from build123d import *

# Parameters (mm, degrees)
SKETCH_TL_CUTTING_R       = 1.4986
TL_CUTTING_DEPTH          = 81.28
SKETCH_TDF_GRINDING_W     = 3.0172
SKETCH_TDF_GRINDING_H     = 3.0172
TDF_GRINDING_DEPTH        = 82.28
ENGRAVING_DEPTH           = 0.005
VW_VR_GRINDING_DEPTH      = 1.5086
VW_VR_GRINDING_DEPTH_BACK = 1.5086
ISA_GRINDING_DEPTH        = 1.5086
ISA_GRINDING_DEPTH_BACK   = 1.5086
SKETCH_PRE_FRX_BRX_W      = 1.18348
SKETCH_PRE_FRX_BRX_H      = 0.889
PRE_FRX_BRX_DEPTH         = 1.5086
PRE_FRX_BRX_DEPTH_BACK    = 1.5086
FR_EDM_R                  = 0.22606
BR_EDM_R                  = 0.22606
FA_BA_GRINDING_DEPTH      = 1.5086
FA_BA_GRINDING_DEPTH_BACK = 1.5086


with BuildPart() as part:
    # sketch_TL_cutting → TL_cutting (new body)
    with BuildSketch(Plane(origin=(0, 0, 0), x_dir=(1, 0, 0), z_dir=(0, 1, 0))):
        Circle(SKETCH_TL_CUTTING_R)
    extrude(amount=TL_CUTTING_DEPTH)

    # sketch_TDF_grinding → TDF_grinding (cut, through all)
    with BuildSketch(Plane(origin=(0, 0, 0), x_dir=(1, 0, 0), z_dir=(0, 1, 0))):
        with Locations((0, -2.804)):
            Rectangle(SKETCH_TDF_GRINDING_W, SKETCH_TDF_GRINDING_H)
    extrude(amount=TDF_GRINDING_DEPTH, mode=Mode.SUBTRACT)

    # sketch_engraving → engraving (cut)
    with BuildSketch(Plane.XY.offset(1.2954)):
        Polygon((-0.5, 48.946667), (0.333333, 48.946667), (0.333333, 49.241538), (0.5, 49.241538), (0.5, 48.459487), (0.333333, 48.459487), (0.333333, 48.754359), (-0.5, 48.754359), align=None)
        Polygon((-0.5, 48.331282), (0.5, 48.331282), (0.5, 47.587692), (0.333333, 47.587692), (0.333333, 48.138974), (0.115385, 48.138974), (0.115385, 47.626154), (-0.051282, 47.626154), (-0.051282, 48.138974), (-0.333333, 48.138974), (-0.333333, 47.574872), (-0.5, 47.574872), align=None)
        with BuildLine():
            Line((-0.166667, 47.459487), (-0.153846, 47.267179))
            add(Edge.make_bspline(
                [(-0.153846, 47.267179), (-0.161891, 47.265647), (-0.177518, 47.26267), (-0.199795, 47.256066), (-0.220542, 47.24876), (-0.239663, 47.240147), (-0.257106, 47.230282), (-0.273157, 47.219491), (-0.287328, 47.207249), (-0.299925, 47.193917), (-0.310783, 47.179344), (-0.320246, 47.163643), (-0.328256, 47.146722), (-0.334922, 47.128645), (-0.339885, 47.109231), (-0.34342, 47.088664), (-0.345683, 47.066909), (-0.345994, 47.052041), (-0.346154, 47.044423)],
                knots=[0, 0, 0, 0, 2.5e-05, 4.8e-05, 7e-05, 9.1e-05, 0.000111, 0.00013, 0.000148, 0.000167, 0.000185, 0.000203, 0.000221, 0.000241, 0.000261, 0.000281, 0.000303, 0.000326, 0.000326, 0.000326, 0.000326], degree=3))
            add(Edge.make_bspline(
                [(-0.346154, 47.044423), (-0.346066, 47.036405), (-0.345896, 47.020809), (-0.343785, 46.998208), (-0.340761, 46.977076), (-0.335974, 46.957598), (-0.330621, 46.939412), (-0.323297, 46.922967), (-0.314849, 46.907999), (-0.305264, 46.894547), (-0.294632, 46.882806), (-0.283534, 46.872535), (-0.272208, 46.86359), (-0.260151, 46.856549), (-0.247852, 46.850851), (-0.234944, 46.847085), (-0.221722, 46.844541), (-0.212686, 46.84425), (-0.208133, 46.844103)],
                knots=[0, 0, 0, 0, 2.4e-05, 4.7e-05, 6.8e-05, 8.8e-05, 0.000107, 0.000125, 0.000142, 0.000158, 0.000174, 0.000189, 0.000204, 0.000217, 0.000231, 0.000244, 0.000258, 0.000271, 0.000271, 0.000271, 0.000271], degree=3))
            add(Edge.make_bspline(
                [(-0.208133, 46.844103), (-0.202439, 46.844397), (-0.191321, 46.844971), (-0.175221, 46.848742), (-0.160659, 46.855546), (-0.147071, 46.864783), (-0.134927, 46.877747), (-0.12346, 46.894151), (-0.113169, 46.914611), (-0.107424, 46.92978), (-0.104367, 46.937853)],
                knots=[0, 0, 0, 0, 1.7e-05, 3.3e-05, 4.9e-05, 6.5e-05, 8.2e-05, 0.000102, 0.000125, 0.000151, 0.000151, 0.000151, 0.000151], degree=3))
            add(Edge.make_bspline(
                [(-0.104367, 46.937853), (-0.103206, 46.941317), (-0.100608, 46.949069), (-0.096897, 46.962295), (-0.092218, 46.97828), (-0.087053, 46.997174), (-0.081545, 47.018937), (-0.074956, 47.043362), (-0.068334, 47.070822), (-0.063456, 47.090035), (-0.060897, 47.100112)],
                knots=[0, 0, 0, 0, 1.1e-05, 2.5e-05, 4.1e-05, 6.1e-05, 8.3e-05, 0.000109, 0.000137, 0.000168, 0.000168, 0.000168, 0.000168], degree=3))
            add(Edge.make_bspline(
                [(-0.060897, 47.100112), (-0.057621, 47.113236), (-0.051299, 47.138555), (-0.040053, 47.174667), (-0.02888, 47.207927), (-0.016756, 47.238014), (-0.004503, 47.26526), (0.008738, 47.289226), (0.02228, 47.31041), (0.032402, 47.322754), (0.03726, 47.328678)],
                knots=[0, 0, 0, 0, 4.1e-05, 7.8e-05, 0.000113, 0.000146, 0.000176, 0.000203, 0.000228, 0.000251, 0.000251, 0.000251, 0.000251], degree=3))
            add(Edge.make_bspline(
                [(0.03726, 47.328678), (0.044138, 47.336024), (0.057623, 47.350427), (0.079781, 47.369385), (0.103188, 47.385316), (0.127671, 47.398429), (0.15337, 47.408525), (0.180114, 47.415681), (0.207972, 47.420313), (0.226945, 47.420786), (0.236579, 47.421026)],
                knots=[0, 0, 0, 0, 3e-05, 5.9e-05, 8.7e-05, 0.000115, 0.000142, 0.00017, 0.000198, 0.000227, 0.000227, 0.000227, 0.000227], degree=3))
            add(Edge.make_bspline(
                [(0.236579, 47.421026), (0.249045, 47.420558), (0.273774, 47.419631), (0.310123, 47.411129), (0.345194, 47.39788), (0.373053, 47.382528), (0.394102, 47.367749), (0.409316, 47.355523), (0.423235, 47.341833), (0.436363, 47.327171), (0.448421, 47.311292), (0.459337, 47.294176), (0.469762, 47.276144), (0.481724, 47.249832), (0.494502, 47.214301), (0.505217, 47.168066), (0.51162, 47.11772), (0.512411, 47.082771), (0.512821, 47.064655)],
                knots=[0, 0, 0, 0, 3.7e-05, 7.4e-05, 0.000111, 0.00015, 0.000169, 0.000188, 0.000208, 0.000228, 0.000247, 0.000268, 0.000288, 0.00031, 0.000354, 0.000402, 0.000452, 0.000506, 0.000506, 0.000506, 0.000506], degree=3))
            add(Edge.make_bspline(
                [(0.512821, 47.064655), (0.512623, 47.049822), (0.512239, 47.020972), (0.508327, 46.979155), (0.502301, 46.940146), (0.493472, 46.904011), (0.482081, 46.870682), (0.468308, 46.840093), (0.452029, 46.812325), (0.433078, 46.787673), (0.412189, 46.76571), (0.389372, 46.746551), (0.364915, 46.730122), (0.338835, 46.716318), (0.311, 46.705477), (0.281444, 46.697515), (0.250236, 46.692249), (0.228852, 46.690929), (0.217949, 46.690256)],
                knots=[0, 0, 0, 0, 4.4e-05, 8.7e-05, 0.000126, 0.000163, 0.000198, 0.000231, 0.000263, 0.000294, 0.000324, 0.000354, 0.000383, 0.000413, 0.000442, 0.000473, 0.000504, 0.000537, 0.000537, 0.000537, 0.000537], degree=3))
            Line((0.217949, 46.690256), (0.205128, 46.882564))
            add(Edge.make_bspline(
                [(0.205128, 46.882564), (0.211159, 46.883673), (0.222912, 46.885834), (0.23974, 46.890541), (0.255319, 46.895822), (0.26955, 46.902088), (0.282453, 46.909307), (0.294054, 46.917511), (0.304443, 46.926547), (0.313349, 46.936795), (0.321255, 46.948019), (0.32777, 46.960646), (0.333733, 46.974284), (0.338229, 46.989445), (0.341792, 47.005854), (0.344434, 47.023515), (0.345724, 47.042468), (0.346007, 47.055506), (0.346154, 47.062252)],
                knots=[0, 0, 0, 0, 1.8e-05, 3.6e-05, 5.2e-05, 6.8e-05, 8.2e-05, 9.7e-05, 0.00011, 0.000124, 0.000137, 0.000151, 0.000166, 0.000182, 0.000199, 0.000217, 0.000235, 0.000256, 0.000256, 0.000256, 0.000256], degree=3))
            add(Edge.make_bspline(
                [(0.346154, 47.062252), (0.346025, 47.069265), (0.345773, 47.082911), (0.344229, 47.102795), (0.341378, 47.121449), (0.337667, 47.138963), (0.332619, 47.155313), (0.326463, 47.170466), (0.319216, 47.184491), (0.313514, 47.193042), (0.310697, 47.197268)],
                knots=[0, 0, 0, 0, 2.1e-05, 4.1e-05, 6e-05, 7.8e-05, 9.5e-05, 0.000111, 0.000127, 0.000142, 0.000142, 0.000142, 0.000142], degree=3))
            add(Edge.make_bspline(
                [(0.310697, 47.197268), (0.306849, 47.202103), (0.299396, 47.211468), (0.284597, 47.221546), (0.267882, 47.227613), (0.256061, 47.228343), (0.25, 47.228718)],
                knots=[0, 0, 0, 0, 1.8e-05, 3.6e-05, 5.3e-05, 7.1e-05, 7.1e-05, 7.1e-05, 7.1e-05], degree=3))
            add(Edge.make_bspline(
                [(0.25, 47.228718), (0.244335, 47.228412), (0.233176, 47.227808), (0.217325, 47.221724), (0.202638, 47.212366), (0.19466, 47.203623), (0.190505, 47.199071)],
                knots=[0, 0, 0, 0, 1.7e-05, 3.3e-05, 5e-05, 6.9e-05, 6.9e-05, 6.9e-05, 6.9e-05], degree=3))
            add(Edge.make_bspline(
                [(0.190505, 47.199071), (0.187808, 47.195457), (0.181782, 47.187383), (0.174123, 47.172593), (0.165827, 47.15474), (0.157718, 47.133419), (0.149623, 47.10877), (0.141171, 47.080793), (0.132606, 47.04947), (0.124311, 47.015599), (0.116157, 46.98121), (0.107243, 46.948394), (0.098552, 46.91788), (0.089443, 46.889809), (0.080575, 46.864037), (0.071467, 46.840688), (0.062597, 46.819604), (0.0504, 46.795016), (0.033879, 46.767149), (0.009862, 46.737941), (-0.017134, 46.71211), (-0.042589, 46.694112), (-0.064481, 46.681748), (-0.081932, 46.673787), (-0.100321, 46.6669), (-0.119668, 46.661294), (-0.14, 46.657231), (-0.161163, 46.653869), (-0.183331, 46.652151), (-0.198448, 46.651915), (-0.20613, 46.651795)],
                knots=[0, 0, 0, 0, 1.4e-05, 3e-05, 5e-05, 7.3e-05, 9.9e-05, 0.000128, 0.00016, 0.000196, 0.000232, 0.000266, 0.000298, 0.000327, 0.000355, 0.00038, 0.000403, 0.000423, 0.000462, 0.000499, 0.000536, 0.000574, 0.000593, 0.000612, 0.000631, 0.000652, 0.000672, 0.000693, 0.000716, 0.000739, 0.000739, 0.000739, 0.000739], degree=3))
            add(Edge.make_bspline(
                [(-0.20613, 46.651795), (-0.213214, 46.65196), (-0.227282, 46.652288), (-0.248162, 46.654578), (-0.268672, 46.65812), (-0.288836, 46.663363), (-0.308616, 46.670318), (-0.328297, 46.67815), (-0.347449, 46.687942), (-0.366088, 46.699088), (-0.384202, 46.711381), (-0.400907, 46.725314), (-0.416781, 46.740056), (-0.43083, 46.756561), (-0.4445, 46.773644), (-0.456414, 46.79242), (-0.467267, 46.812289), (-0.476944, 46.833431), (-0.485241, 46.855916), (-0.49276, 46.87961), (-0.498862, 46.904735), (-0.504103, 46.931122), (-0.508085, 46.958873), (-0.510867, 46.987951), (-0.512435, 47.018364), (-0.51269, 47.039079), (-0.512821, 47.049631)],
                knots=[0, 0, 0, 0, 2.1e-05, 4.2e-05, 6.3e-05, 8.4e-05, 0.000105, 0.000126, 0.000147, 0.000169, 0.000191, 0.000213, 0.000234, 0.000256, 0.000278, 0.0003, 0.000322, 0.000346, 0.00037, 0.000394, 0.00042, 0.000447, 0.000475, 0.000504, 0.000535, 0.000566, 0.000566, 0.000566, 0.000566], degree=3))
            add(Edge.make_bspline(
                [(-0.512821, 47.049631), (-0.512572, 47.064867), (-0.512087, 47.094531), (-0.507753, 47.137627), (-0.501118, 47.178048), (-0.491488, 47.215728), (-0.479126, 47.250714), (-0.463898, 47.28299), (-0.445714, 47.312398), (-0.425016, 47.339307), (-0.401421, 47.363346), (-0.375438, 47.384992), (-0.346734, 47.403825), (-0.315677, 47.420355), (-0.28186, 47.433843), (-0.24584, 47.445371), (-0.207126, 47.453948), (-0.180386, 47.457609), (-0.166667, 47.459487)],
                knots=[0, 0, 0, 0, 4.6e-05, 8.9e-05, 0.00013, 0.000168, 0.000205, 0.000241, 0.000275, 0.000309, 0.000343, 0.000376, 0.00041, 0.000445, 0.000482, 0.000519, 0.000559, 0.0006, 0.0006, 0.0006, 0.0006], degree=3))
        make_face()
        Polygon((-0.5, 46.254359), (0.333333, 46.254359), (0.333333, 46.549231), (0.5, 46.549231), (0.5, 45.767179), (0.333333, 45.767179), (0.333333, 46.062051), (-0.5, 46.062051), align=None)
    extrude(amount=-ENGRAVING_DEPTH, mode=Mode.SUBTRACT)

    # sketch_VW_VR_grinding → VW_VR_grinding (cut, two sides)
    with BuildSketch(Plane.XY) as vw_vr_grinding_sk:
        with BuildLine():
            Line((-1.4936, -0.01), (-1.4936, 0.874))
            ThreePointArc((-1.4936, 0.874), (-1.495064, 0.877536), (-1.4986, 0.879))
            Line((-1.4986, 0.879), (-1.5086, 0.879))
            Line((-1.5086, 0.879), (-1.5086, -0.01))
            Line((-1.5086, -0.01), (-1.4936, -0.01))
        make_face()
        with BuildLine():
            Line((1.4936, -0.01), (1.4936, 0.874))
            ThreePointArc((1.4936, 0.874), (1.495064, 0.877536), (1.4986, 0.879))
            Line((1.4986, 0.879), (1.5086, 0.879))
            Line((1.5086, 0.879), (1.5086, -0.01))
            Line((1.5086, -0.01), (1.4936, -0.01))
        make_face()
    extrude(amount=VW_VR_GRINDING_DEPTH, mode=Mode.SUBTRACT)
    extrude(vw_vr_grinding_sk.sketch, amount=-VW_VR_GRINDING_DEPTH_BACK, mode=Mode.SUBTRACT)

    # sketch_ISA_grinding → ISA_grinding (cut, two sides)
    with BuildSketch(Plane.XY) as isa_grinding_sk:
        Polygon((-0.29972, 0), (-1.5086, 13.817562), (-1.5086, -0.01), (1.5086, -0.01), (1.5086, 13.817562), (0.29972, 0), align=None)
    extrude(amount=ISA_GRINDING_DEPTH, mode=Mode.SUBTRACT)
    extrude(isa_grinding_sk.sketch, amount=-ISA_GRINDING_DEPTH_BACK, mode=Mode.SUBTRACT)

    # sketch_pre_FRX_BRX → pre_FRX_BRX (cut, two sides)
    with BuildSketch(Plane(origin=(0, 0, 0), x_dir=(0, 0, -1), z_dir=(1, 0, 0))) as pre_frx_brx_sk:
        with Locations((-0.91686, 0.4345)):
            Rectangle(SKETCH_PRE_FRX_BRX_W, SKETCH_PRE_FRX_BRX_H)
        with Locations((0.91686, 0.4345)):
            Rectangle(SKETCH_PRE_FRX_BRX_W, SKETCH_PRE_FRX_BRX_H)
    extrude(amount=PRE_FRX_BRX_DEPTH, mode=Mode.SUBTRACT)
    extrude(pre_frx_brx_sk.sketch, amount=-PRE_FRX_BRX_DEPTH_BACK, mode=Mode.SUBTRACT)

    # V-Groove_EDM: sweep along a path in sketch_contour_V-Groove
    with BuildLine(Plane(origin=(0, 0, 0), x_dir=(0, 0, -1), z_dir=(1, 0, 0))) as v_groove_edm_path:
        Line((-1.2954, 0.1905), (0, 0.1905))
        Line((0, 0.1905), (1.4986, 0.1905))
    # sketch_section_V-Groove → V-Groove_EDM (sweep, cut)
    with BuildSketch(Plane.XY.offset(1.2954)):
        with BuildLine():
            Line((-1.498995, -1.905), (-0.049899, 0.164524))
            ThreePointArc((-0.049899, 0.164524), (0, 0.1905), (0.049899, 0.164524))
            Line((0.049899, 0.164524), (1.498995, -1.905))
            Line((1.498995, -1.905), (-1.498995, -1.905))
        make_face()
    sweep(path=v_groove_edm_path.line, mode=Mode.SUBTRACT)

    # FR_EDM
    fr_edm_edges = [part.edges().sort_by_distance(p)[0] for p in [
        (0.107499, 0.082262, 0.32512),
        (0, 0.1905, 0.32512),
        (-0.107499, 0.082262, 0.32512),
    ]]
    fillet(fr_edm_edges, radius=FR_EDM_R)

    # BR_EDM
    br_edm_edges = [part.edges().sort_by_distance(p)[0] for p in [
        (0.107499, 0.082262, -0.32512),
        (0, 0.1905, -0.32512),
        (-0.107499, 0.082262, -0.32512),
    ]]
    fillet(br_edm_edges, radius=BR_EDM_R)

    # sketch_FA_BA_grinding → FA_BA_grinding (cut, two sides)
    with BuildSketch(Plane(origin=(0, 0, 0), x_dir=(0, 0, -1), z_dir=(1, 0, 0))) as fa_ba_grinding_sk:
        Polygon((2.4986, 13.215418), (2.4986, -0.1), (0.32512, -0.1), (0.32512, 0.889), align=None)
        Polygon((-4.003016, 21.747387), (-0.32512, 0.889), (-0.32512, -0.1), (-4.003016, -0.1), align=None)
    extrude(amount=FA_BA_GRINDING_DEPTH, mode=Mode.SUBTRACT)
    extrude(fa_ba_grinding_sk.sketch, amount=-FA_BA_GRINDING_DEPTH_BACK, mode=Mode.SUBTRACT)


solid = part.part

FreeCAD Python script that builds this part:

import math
import FreeCAD as App
import Part
import Sketcher

V = App.Vector
Q = App.Units.Quantity


def edges_at(feature, points):
    """Names of the edges that pass closest to the given points."""
    edges = feature.Shape.Edges
    near = lambda p: min(range(len(edges)), key=lambda i: edges[i].distToShape(Part.Vertex(*p))[0])
    return sorted({f"Edge{near(p) + 1}" for p in points})


def add_polygon(sketch, points):
    """Adds a closed chain of lines whose ends are joined by coincident constraints."""
    first, n = sketch.GeometryCount, len(points)
    for a, b in zip(points, points[1:] + points[:1]):
        sketch.addGeometry(Part.LineSegment(App.Vector(*a, 0), App.Vector(*b, 0)), False)
    for i in range(n):
        sketch.addConstraint(Sketcher.Constraint("Coincident", first + i, 2, first + (i + 1) % n, 1))

doc = App.newDocument("Part")
body = doc.addObject("PartDesign::Body", "Body")

# Sketch on XZ plane
sketch1 = body.newObject("Sketcher::SketchObject", "Sketch")
sketch1.AttachmentSupport = (doc.getObject("XZ_Plane"), [""])
sketch1.MapMode = "FlatFace"
sketch1.addGeometry(Part.Circle(V(0, 0, 0), V(0, 0, 1), 1.5), False)
sketch1.addConstraint([
    Sketcher.Constraint("Coincident", 0, 3, -1, 1),
    Sketcher.Constraint("Diameter", 0, Q("0.118 in")),
])
pad1 = body.newObject("PartDesign::Pad", "Pad")
pad1.Profile = sketch1
pad1.Length = Q("3.2 in")
pad1.Reversed = True

# Sketch on XZ plane
sketch2 = body.newObject("Sketcher::SketchObject", "Sketch001")
sketch2.AttachmentSupport = (doc.getObject("XZ_Plane"), [""])
sketch2.MapMode = "FlatFace"
add_polygon(sketch2, [(-1.5, 1.3), (-1.5, 4.3), (1.5, 4.3), (1.5, 1.3)])  # lines 0-3
sketch2.addConstraint([
    Sketcher.Constraint("Vertical", 0),
    Sketcher.Constraint("Horizontal", 1),
    Sketcher.Constraint("Vertical", 2),
    Sketcher.Constraint("Horizontal", 3),
    Sketcher.Constraint("Equal", 3, 0),
    Sketcher.Constraint("DistanceY", -1, 1, 2, 2, Q("0.051 in")),
    Sketcher.Constraint("DistanceX", 1, 1, 1, 2, 3.0172),
    Sketcher.Constraint("DistanceX", 0, 2, -1, 1, 1.5086),
])
pocket1 = body.newObject("PartDesign::Pocket", "Pocket")
pocket1.Profile = sketch2
pocket1.Type = "ThroughAll"

# Sketch on XY plane
sketch3 = body.newObject("Sketcher::SketchObject", "Sketch002")
sketch3.AttachmentSupport = (doc.getObject("XY_Plane"), [""])
sketch3.MapMode = "FlatFace"
sketch3.AttachmentOffset = App.Placement(V(0, 0, 0.051 * 25.4), App.Rotation())
add_polygon(sketch3, [(0.333333, 48.946667), (-0.5, 48.946667), (-0.5, 48.754359), (0.333333, 48.754359), (0.333333, 48.459487), (0.5, 48.459487), (0.5, 49.241538), (0.333333, 49.241538)])  # lines 0-7
add_polygon(sketch3, [(0.5, 48.331282), (-0.5, 48.331282), (-0.5, 47.574872), (-0.333333, 47.574872), (-0.333333, 48.138974), (-0.051282, 48.138974), (-0.051282, 47.626154), (0.115385, 47.626154), (0.115385, 48.138974), (0.333333, 48.138974), (0.333333, 47.587692), (0.5, 47.587692)])  # lines 8-19
sketch3.addGeometry(Part.LineSegment(V(-0.153846, 47.267179, 0), V(-0.166667, 47.459487, 0)), False)  # 20
sketch3.addGeometry(Part.BSplineCurve([V(-0.512821, 47.049631, 0), V(-0.512572, 47.064867, 0), V(-0.512087, 47.094531, 0), V(-0.507753, 47.137627, 0), V(-0.501118, 47.178048, 0), V(-0.491488, 47.215728, 0), V(-0.479126, 47.250714, 0), V(-0.463898, 47.28299, 0), V(-0.445714, 47.312398, 0), V(-0.425016, 47.339307, 0), V(-0.401421, 47.363346, 0), V(-0.375438, 47.384992, 0), V(-0.346734, 47.403825, 0), V(-0.315677, 47.420355, 0), V(-0.28186, 47.433843, 0), V(-0.24584, 47.445371, 0), V(-0.207126, 47.453948, 0), V(-0.180386, 47.457609, 0), V(-0.166667, 47.459487, 0)], [4, 1, 1, 1, 1, 1, 1, 1, 1, 1, 1, 1, 1, 1, 1, 1, 4], [0, 0.000046, 0.000089, 0.00013, 0.000168, 0.000205, 0.000241, 0.000275, 0.000309, 0.000343, 0.000376, 0.00041, 0.000445, 0.000482, 0.000519, 0.000559, 0.0006], False, 3, [1, 1, 1, 1, 1, 1, 1, 1, 1, 1, 1, 1, 1, 1, 1, 1, 1, 1, 1], False), False)  # 21
sketch3.addGeometry(Part.BSplineCurve([V(-0.20613, 46.651795, 0), V(-0.213214, 46.65196, 0), V(-0.227282, 46.652288, 0), V(-0.248162, 46.654578, 0), V(-0.268672, 46.65812, 0), V(-0.288836, 46.663363, 0), V(-0.308616, 46.670318, 0), V(-0.328297, 46.67815, 0), V(-0.347449, 46.687942, 0), V(-0.366088, 46.699088, 0), V(-0.384202, 46.711381, 0), V(-0.400907, 46.725314, 0), V(-0.416781, 46.740056, 0), V(-0.43083, 46.756561, 0), V(-0.4445, 46.773644, 0), V(-0.456414, 46.79242, 0), V(-0.467267, 46.812289, 0), V(-0.476944, 46.833431, 0), V(-0.485241, 46.855916, 0), V(-0.49276, 46.87961, 0), V(-0.498862, 46.904735, 0), V(-0.504103, 46.931122, 0), V(-0.508085, 46.958873, 0), V(-0.510867, 46.987951, 0), V(-0.512435, 47.018364, 0), V(-0.51269, 47.039079, 0), V(-0.512821, 47.049631, 0)], [4, 1, 1, 1, 1, 1, 1, 1, 1, 1, 1, 1, 1, 1, 1, 1, 1, 1, 1, 1, 1, 1, 1, 1, 4], [0, 0.000021, 0.000042, 0.000063, 0.000084, 0.000105, 0.000126, 0.000147, 0.000169, 0.000191, 0.000213, 0.000234, 0.000256, 0.000278, 0.0003, 0.000322, 0.000346, 0.00037, 0.000394, 0.00042, 0.000447, 0.000475, 0.000504, 0.000535, 0.000566], False, 3, [1, 1, 1, 1, 1, 1, 1, 1, 1, 1, 1, 1, 1, 1, 1, 1, 1, 1, 1, 1, 1, 1, 1, 1, 1, 1, 1], False), False)  # 22
sketch3.addGeometry(Part.BSplineCurve([V(0.190505, 47.199071, 0), V(0.187808, 47.195457, 0), V(0.181782, 47.187383, 0), V(0.174123, 47.172593, 0), V(0.165827, 47.15474, 0), V(0.157718, 47.133419, 0), V(0.149623, 47.10877, 0), V(0.141171, 47.080793, 0), V(0.132606, 47.04947, 0), V(0.124311, 47.015599, 0), V(0.116157, 46.98121, 0), V(0.107243, 46.948394, 0), V(0.098552, 46.91788, 0), V(0.089443, 46.889809, 0), V(0.080575, 46.864037, 0), V(0.071467, 46.840688, 0), V(0.062597, 46.819604, 0), V(0.0504, 46.795016, 0), V(0.033879, 46.767149, 0), V(0.009862, 46.737941, 0), V(-0.017134, 46.71211, 0), V(-0.042589, 46.694112, 0), V(-0.064481, 46.681748, 0), V(-0.081932, 46.673787, 0), V(-0.100321, 46.6669, 0), V(-0.119668, 46.661294, 0), V(-0.14, 46.657231, 0), V(-0.161163, 46.653869, 0), V(-0.183331, 46.652151, 0), V(-0.198448, 46.651915, 0), V(-0.20613, 46.651795, 0)], [4, 1, 1, 1, 1, 1, 1, 1, 1, 1, 1, 1, 1, 1, 1, 1, 1, 1, 1, 1, 1, 1, 1, 1, 1, 1, 1, 1, 4], [0, 0.000014, 0.00003, 0.00005, 0.000073, 0.000099, 0.000128, 0.00016, 0.000196, 0.000232, 0.000266, 0.000298, 0.000327, 0.000355, 0.00038, 0.000403, 0.000423, 0.000462, 0.000499, 0.000536, 0.000574, 0.000593, 0.000612, 0.000631, 0.000652, 0.000672, 0.000693, 0.000716, 0.000739], False, 3, [1, 1, 1, 1, 1, 1, 1, 1, 1, 1, 1, 1, 1, 1, 1, 1, 1, 1, 1, 1, 1, 1, 1, 1, 1, 1, 1, 1, 1, 1, 1], False), False)  # 23
sketch3.addGeometry(Part.BSplineCurve([V(0.25, 47.228718, 0), V(0.244335, 47.228412, 0), V(0.233176, 47.227808, 0), V(0.217325, 47.221724, 0), V(0.202638, 47.212366, 0), V(0.19466, 47.203623, 0), V(0.190505, 47.199071, 0)], [4, 1, 1, 1, 4], [0, 0.000017, 0.000033, 0.00005, 0.000069], False, 3, [1, 1, 1, 1, 1, 1, 1], False), False)  # 24
sketch3.addGeometry(Part.BSplineCurve([V(0.310697, 47.197268, 0), V(0.306849, 47.202103, 0), V(0.299396, 47.211468, 0), V(0.284597, 47.221546, 0), V(0.267882, 47.227613, 0), V(0.256061, 47.228343, 0), V(0.25, 47.228718, 0)], [4, 1, 1, 1, 4], [0, 0.000018, 0.000036, 0.000053, 0.000071], False, 3, [1, 1, 1, 1, 1, 1, 1], False), False)  # 25
sketch3.addGeometry(Part.BSplineCurve([V(0.346154, 47.062252, 0), V(0.346025, 47.069265, 0), V(0.345773, 47.082911, 0), V(0.344229, 47.102795, 0), V(0.341378, 47.121449, 0), V(0.337667, 47.138963, 0), V(0.332619, 47.155313, 0), V(0.326463, 47.170466, 0), V(0.319216, 47.184491, 0), V(0.313514, 47.193042, 0), V(0.310697, 47.197268, 0)], [4, 1, 1, 1, 1, 1, 1, 1, 4], [0, 0.000021, 0.000041, 0.00006, 0.000078, 0.000095, 0.000111, 0.000127, 0.000142], False, 3, [1, 1, 1, 1, 1, 1, 1, 1, 1, 1, 1], False), False)  # 26
sketch3.addGeometry(Part.BSplineCurve([V(0.205128, 46.882564, 0), V(0.211159, 46.883673, 0), V(0.222912, 46.885834, 0), V(0.23974, 46.890541, 0), V(0.255319, 46.895822, 0), V(0.26955, 46.902088, 0), V(0.282453, 46.909307, 0), V(0.294054, 46.917511, 0), V(0.304443, 46.926547, 0), V(0.313349, 46.936795, 0), V(0.321255, 46.948019, 0), V(0.32777, 46.960646, 0), V(0.333733, 46.974284, 0), V(0.338229, 46.989445, 0), V(0.341792, 47.005854, 0), V(0.344434, 47.023515, 0), V(0.345724, 47.042468, 0), V(0.346007, 47.055506, 0), V(0.346154, 47.062252, 0)], [4, 1, 1, 1, 1, 1, 1, 1, 1, 1, 1, 1, 1, 1, 1, 1, 4], [0, 0.000018, 0.000036, 0.000052, 0.000068, 0.000082, 0.000097, 0.00011, 0.000124, 0.000137, 0.000151, 0.000166, 0.000182, 0.000199, 0.000217, 0.000235, 0.000256], False, 3, [1, 1, 1, 1, 1, 1, 1, 1, 1, 1, 1, 1, 1, 1, 1, 1, 1, 1, 1], False), False)  # 27
sketch3.addGeometry(Part.LineSegment(V(0.205128, 46.882564, 0), V(0.217949, 46.690256, 0)), False)  # 28
sketch3.addGeometry(Part.BSplineCurve([V(0.512821, 47.064655, 0), V(0.512623, 47.049822, 0), V(0.512239, 47.020972, 0), V(0.508327, 46.979155, 0), V(0.502301, 46.940146, 0), V(0.493472, 46.904011, 0), V(0.482081, 46.870682, 0), V(0.468308, 46.840093, 0), V(0.452029, 46.812325, 0), V(0.433078, 46.787673, 0), V(0.412189, 46.76571, 0), V(0.389372, 46.746551, 0), V(0.364915, 46.730122, 0), V(0.338835, 46.716318, 0), V(0.311, 46.705477, 0), V(0.281444, 46.697515, 0), V(0.250236, 46.692249, 0), V(0.228852, 46.690929, 0), V(0.217949, 46.690256, 0)], [4, 1, 1, 1, 1, 1, 1, 1, 1, 1, 1, 1, 1, 1, 1, 1, 4], [0, 0.000044, 0.000087, 0.000126, 0.000163, 0.000198, 0.000231, 0.000263, 0.000294, 0.000324, 0.000354, 0.000383, 0.000413, 0.000442, 0.000473, 0.000504, 0.000537], False, 3, [1, 1, 1, 1, 1, 1, 1, 1, 1, 1, 1, 1, 1, 1, 1, 1, 1, 1, 1], False), False)  # 29
sketch3.addGeometry(Part.BSplineCurve([V(0.236579, 47.421026, 0), V(0.249045, 47.420558, 0), V(0.273774, 47.419631, 0), V(0.310123, 47.411129, 0), V(0.345194, 47.39788, 0), V(0.373053, 47.382528, 0), V(0.394102, 47.367749, 0), V(0.409316, 47.355523, 0), V(0.423235, 47.341833, 0), V(0.436363, 47.327171, 0), V(0.448421, 47.311292, 0), V(0.459337, 47.294176, 0), V(0.469762, 47.276144, 0), V(0.481724, 47.249832, 0), V(0.494502, 47.214301, 0), V(0.505217, 47.168066, 0), V(0.51162, 47.11772, 0), V(0.512411, 47.082771, 0), V(0.512821, 47.064655, 0)], [4, 1, 1, 1, 1, 1, 1, 1, 1, 1, 1, 1, 1, 1, 1, 1, 4], [0, 0.000037, 0.000074, 0.000111, 0.00015, 0.000169, 0.000188, 0.000208, 0.000228, 0.000247, 0.000268, 0.000288, 0.00031, 0.000354, 0.000402, 0.000452, 0.000506], False, 3, [1, 1, 1, 1, 1, 1, 1, 1, 1, 1, 1, 1, 1, 1, 1, 1, 1, 1, 1], False), False)  # 30
sketch3.addGeometry(Part.BSplineCurve([V(0.03726, 47.328678, 0), V(0.044138, 47.336024, 0), V(0.057623, 47.350427, 0), V(0.079781, 47.369385, 0), V(0.103188, 47.385316, 0), V(0.127671, 47.398429, 0), V(0.15337, 47.408525, 0), V(0.180114, 47.415681, 0), V(0.207972, 47.420313, 0), V(0.226945, 47.420786, 0), V(0.236579, 47.421026, 0)], [4, 1, 1, 1, 1, 1, 1, 1, 4], [0, 0.00003, 0.000059, 0.000087, 0.000115, 0.000142, 0.00017, 0.000198, 0.000227], False, 3, [1, 1, 1, 1, 1, 1, 1, 1, 1, 1, 1], False), False)  # 31
sketch3.addGeometry(Part.BSplineCurve([V(-0.060897, 47.100112, 0), V(-0.057621, 47.113236, 0), V(-0.051299, 47.138555, 0), V(-0.040053, 47.174667, 0), V(-0.02888, 47.207927, 0), V(-0.016756, 47.238014, 0), V(-0.004503, 47.26526, 0), V(0.008738, 47.289226, 0), V(0.02228, 47.31041, 0), V(0.032402, 47.322754, 0), V(0.03726, 47.328678, 0)], [4, 1, 1, 1, 1, 1, 1, 1, 4], [0, 0.000041, 0.000078, 0.000113, 0.000146, 0.000176, 0.000203, 0.000228, 0.000251], False, 3, [1, 1, 1, 1, 1, 1, 1, 1, 1, 1, 1], False), False)  # 32
sketch3.addGeometry(Part.BSplineCurve([V(-0.104367, 46.937853, 0), V(-0.103206, 46.941317, 0), V(-0.100608, 46.949069, 0), V(-0.096897, 46.962295, 0), V(-0.092218, 46.97828, 0), V(-0.087053, 46.997174, 0), V(-0.081545, 47.018937, 0), V(-0.074956, 47.043362, 0), V(-0.068334, 47.070822, 0), V(-0.063456, 47.090035, 0), V(-0.060897, 47.100112, 0)], [4, 1, 1, 1, 1, 1, 1, 1, 4], [0, 0.000011, 0.000025, 0.000041, 0.000061, 0.000083, 0.000109, 0.000137, 0.000168], False, 3, [1, 1, 1, 1, 1, 1, 1, 1, 1, 1, 1], False), False)  # 33
sketch3.addGeometry(Part.BSplineCurve([V(-0.208133, 46.844103, 0), V(-0.202439, 46.844397, 0), V(-0.191321, 46.844971, 0), V(-0.175221, 46.848742, 0), V(-0.160659, 46.855546, 0), V(-0.147071, 46.864783, 0), V(-0.134927, 46.877747, 0), V(-0.12346, 46.894151, 0), V(-0.113169, 46.914611, 0), V(-0.107424, 46.92978, 0), V(-0.104367, 46.937853, 0)], [4, 1, 1, 1, 1, 1, 1, 1, 4], [0, 0.000017, 0.000033, 0.000049, 0.000065, 0.000082, 0.000102, 0.000125, 0.000151], False, 3, [1, 1, 1, 1, 1, 1, 1, 1, 1, 1, 1], False), False)  # 34
sketch3.addGeometry(Part.BSplineCurve([V(-0.346154, 47.044423, 0), V(-0.346066, 47.036405, 0), V(-0.345896, 47.020809, 0), V(-0.343785, 46.998208, 0), V(-0.340761, 46.977076, 0), V(-0.335974, 46.957598, 0), V(-0.330621, 46.939412, 0), V(-0.323297, 46.922967, 0), V(-0.314849, 46.907999, 0), V(-0.305264, 46.894547, 0), V(-0.294632, 46.882806, 0), V(-0.283534, 46.872535, 0), V(-0.272208, 46.86359, 0), V(-0.260151, 46.856549, 0), V(-0.247852, 46.850851, 0), V(-0.234944, 46.847085, 0), V(-0.221722, 46.844541, 0), V(-0.212686, 46.84425, 0), V(-0.208133, 46.844103, 0)], [4, 1, 1, 1, 1, 1, 1, 1, 1, 1, 1, 1, 1, 1, 1, 1, 4], [0, 0.000024, 0.000047, 0.000068, 0.000088, 0.000107, 0.000125, 0.000142, 0.000158, 0.000174, 0.000189, 0.000204, 0.000217, 0.000231, 0.000244, 0.000258, 0.000271], False, 3, [1, 1, 1, 1, 1, 1, 1, 1, 1, 1, 1, 1, 1, 1, 1, 1, 1, 1, 1], False), False)  # 35
sketch3.addGeometry(Part.BSplineCurve([V(-0.153846, 47.267179, 0), V(-0.161891, 47.265647, 0), V(-0.177518, 47.26267, 0), V(-0.199795, 47.256066, 0), V(-0.220542, 47.24876, 0), V(-0.239663, 47.240147, 0), V(-0.257106, 47.230282, 0), V(-0.273157, 47.219491, 0), V(-0.287328, 47.207249, 0), V(-0.299925, 47.193917, 0), V(-0.310783, 47.179344, 0), V(-0.320246, 47.163643, 0), V(-0.328256, 47.146722, 0), V(-0.334922, 47.128645, 0), V(-0.339885, 47.109231, 0), V(-0.34342, 47.088664, 0), V(-0.345683, 47.066909, 0), V(-0.345994, 47.052041, 0), V(-0.346154, 47.044423, 0)], [4, 1, 1, 1, 1, 1, 1, 1, 1, 1, 1, 1, 1, 1, 1, 1, 4], [0, 0.000025, 0.000048, 0.00007, 0.000091, 0.000111, 0.00013, 0.000148, 0.000167, 0.000185, 0.000203, 0.000221, 0.000241, 0.000261, 0.000281, 0.000303, 0.000326], False, 3, [1, 1, 1, 1, 1, 1, 1, 1, 1, 1, 1, 1, 1, 1, 1, 1, 1, 1, 1], False), False)  # 36
add_polygon(sketch3, [(0.333333, 46.254359), (-0.5, 46.254359), (-0.5, 46.062051), (0.333333, 46.062051), (0.333333, 45.767179), (0.5, 45.767179), (0.5, 46.549231), (0.333333, 46.549231)])  # lines 37-44
sketch3.addConstraint([
    Sketcher.Constraint("Block", 21),
    Sketcher.Constraint("Block", 22),
    Sketcher.Constraint("Block", 23),
    Sketcher.Constraint("Block", 24),
    Sketcher.Constraint("Block", 25),
    Sketcher.Constraint("Block", 26),
    Sketcher.Constraint("Block", 27),
    Sketcher.Constraint("Block", 29),
    Sketcher.Constraint("Block", 30),
    Sketcher.Constraint("Block", 31),
    Sketcher.Constraint("Block", 32),
    Sketcher.Constraint("Block", 33),
    Sketcher.Constraint("Block", 34),
    Sketcher.Constraint("Block", 35),
    Sketcher.Constraint("Block", 36),
    Sketcher.Constraint("Coincident", 20, 2, 21, 2),
    Sketcher.Constraint("Coincident", 27, 1, 28, 1),
    Sketcher.Constraint("Coincident", 28, 2, 29, 2),
    Sketcher.Constraint("Coincident", 36, 1, 20, 1),
    Sketcher.Constraint("Horizontal", 0),
    Sketcher.Constraint("Vertical", 1),
    Sketcher.Constraint("Horizontal", 2),
    Sketcher.Constraint("Vertical", 3),
    Sketcher.Constraint("Horizontal", 4),
    Sketcher.Constraint("Vertical", 5),
    Sketcher.Constraint("Horizontal", 6),
    Sketcher.Constraint("Vertical", 7),
    Sketcher.Constraint("Horizontal", 8),
    Sketcher.Constraint("Vertical", 9),
    Sketcher.Constraint("Horizontal", 10),
    Sketcher.Constraint("Vertical", 11),
    Sketcher.Constraint("Horizontal", 12),
    Sketcher.Constraint("Vertical", 13),
    Sketcher.Constraint("Horizontal", 14),
    Sketcher.Constraint("Vertical", 15),
    Sketcher.Constraint("Horizontal", 16),
    Sketcher.Constraint("Vertical", 17),
    Sketcher.Constraint("Horizontal", 18),
    Sketcher.Constraint("Vertical", 19),
    Sketcher.Constraint("Horizontal", 37),
    Sketcher.Constraint("Vertical", 38),
    Sketcher.Constraint("Horizontal", 39),
    Sketcher.Constraint("Vertical", 40),
    Sketcher.Constraint("Horizontal", 41),
    Sketcher.Constraint("Vertical", 42),
    Sketcher.Constraint("Horizontal", 43),
    Sketcher.Constraint("Vertical", 44),
    Sketcher.Constraint("Symmetric", 11, 2, 16, 2, -2),
    Sketcher.Constraint("Vertical", 3, 2, 6, 2),
    Sketcher.Constraint("Vertical", 1, 2, 8, 2),
    Sketcher.Constraint("Vertical", 7, 2, 16, 2),
    Sketcher.Constraint("Vertical", 5, 2, 18, 2),
    Sketcher.Constraint("Vertical", 9, 2, 37, 2),
    Sketcher.Constraint("Vertical", 17, 2, 39, 2),
    Sketcher.Constraint("Vertical", 19, 2, 41, 2),
    Sketcher.Constraint("Vertical", 40, 2, 43, 2),
    Sketcher.Constraint("Equal", 6, 10),
    Sketcher.Constraint("Equal", 10, 14),
    Sketcher.Constraint("Equal", 3, 7),
    Sketcher.Constraint("Equal", 1, 38),
    Sketcher.Constraint("Equal", 7, 40),
    Sketcher.Constraint("Equal", 5, 42),
    Sketcher.Constraint("DistanceX", 8, 2, 8, 1, 1.0),
    Sketcher.Constraint("DistanceY", 11, 1, 11, 2, 0.564102),
    Sketcher.Constraint("DistanceX", 12, 1, 12, 2, 0.282051),
    Sketcher.Constraint("DistanceY", 3, 2, 3, 1, 0.294872),
    Sketcher.Constraint("DistanceY", 5, 1, 5, 2, 0.782051),
    Sketcher.Constraint("DistanceY", 9, 2, 9, 1, 0.75641),
    Sketcher.Constraint("DistanceY", 13, 2, 13, 1, 0.51282),
    Sketcher.Constraint("DistanceY", 19, 1, 19, 2, 0.74359),
    Sketcher.Constraint("DistanceX", 20, 2, 17, 2, 0.5),
    Sketcher.Constraint("DistanceY", 28, 2, 14, 2, 0.935898),
    Sketcher.Constraint("DistanceY", -1, 1, 1, 2, 48.754359),
    Sketcher.Constraint("DistanceY", -1, 1, 37, 2, 46.254359),
])
pocket2 = body.newObject("PartDesign::Pocket", "Pocket001")
pocket2.Profile = sketch3
pocket2.Length = 0.005

# Sketch on XY plane
sketch4 = body.newObject("Sketcher::SketchObject", "Sketch003")
sketch4.AttachmentSupport = (doc.getObject("XY_Plane"), [""])
sketch4.MapMode = "FlatFace"
sketch4.addGeometry([
    Part.LineSegment(V(-1.4936, -0.01, 0), V(-1.4936, 0.874, 0)),  # 0
    Part.ArcOfCircle(Part.Circle(V(-1.4986, 0.874, 0), V(0, 0, 1), 0.005), math.radians(0), math.radians(90)),  # 1
    Part.LineSegment(V(-1.4986, 0.879, 0), V(-1.5086, 0.879, 0)),  # 2
    Part.LineSegment(V(-1.5086, 0.879, 0), V(-1.5086, -0.01, 0)),  # 3
    Part.LineSegment(V(-1.5086, -0.01, 0), V(-1.4936, -0.01, 0)),  # 4
    Part.LineSegment(V(1.4936, 0.874, 0), V(1.4936, -0.01, 0)),  # 5
    Part.LineSegment(V(1.4936, -0.01, 0), V(1.5086, -0.01, 0)),  # 6
    Part.LineSegment(V(1.5086, -0.01, 0), V(1.5086, 0.879, 0)),  # 7
    Part.LineSegment(V(1.5086, 0.879, 0), V(1.4986, 0.879, 0)),  # 8
    Part.ArcOfCircle(Part.Circle(V(1.4986, 0.874, 0), V(0, 0, 1), 0.005), math.radians(90), math.radians(180)),  # 9
], False)
sketch4.addConstraint([
    Sketcher.Constraint("Coincident", 0, 2, 1, 1),
    Sketcher.Constraint("Coincident", 1, 2, 2, 1),
    Sketcher.Constraint("Coincident", 2, 2, 3, 1),
    Sketcher.Constraint("Coincident", 3, 2, 4, 1),
    Sketcher.Constraint("Coincident", 4, 2, 0, 1),
    Sketcher.Constraint("Coincident", 5, 2, 6, 1),
    Sketcher.Constraint("Coincident", 6, 2, 7, 1),
    Sketcher.Constraint("Coincident", 7, 2, 8, 1),
    Sketcher.Constraint("Coincident", 8, 2, 9, 1),
    Sketcher.Constraint("Coincident", 9, 2, 5, 1),
    Sketcher.Constraint("Vertical", 0),
    Sketcher.Constraint("Horizontal", 2),
    Sketcher.Constraint("Vertical", 3),
    Sketcher.Constraint("Horizontal", 4),
    Sketcher.Constraint("Vertical", 5),
    Sketcher.Constraint("Horizontal", 6),
    Sketcher.Constraint("Vertical", 7),
    Sketcher.Constraint("Horizontal", 8),
    Sketcher.Constraint("Equal", 1, 9),
    Sketcher.Constraint("Symmetric", 1, 3, 9, 3, -2),
    Sketcher.Constraint("Symmetric", 3, 2, 6, 2, -2),
    Sketcher.Constraint("Horizontal", 9, 3, 0, 2),
    Sketcher.Constraint("Horizontal", 0, 2, 9, 2),
    Sketcher.Constraint("Vertical", 9, 3, 8, 2),
    Sketcher.Constraint("Equal", 2, 8),
    Sketcher.Constraint("DistanceY", 3, 2, 3, 1, Q("0.035 in")),
    Sketcher.Constraint("Radius", 1, 0.004998),
    Sketcher.Constraint("DistanceX", 1, 3, -1, 1, Q("0.0589999 in")),
    Sketcher.Constraint("DistanceX", 2, 2, 2, 1, 0.01),
    Sketcher.Constraint("DistanceY", -1, 1, 1, 3, 0.874002),
])
pocket3 = body.newObject("PartDesign::Pocket", "Pocket002")
pocket3.Profile = sketch4
pocket3.Type = "ThroughAll"
pocket3.Midplane = True

# Sketch on XY plane
sketch5 = body.newObject("Sketcher::SketchObject", "Sketch004")
sketch5.AttachmentSupport = (doc.getObject("XY_Plane"), [""])
sketch5.MapMode = "FlatFace"
add_polygon(sketch5, [(-0.3, 0), (-1.5, 13.8), (-1.5, 0), (1.5, 0), (1.5, 13.8), (0.3, 0)])  # lines 0-5
sketch5.addConstraint([
    Sketcher.Constraint("Vertical", 1),
    Sketcher.Constraint("Horizontal", 2),
    Sketcher.Constraint("Vertical", 3),
    Sketcher.Constraint("Horizontal", 5),
    Sketcher.Constraint("Symmetric", 4, 2, 5, 2, -1, 1),
    Sketcher.Constraint("Symmetric", 0, 2, 3, 2, -2),
    Sketcher.Constraint("Angle", 0, Q("95 deg")),
    Sketcher.Constraint("DistanceX", 5, 2, 5, 1, Q("0.0236 in")),
    Sketcher.Constraint("DistanceX", 2, 1, 2, 2, 3.0172),
    Sketcher.Constraint("DistanceY", 1, 2, -1, 1, 0.01),
])
pocket4 = body.newObject("PartDesign::Pocket", "Pocket003")
pocket4.Profile = sketch5
pocket4.Type = "ThroughAll"
pocket4.Midplane = True

# Sketch on YZ plane
sketch6 = body.newObject("Sketcher::SketchObject", "Sketch005")
sketch6.AttachmentSupport = (doc.getObject("YZ_Plane"), [""])
sketch6.MapMode = "FlatFace"
add_polygon(sketch6, [(0.9, 1.5), (0, 1.5), (0, 0.3), (0.9, 0.3)])  # lines 0-3
add_polygon(sketch6, [(0.9, -0.3), (0, -0.3), (0, -1.5), (0.9, -1.5)])  # lines 4-7
sketch6.addConstraint([
    Sketcher.Constraint("Horizontal", 0),
    Sketcher.Constraint("Vertical", 1),
    Sketcher.Constraint("Horizontal", 2),
    Sketcher.Constraint("Vertical", 3),
    Sketcher.Constraint("Horizontal", 4),
    Sketcher.Constraint("Vertical", 5),
    Sketcher.Constraint("Horizontal", 6),
    Sketcher.Constraint("Vertical", 7),
    Sketcher.Constraint("Symmetric", 1, 2, 4, 2, -1),
    Sketcher.Constraint("Symmetric", 3, 2, 6, 2, -1),
    Sketcher.Constraint("DistanceX", 0, 2, 0, 1, Q("0.035 in")),
    Sketcher.Constraint("DistanceY", -1, 1, 1, 2, Q("0.0128 in")),
    Sketcher.Constraint("DistanceY", 1, 2, 1, 1, 1.18348),
    Sketcher.Constraint("DistanceX", 0, 2, -1, 1, 0.01),
])
pocket5 = body.newObject("PartDesign::Pocket", "Pocket004")
pocket5.Profile = sketch6
pocket5.Type = "ThroughAll"
pocket5.Midplane = True

# Sketch on XY plane
sketch7 = body.newObject("Sketcher::SketchObject", "Sketch006")
sketch7.AttachmentSupport = (doc.getObject("XY_Plane"), [""])
sketch7.MapMode = "FlatFace"
sketch7.AttachmentOffset = App.Placement(V(0, 0, 0.051 * 25.4), App.Rotation())
sketch7.addGeometry([
    Part.LineSegment(V(-0.05, 0.16, 0), V(-1.5, -1.91, 0)),
    Part.LineSegment(V(-1.5, -1.91, 0), V(1.5, -1.91, 0)),
    Part.LineSegment(V(1.5, -1.91, 0), V(0.05, 0.16, 0)),
    Part.ArcOfCircle(Part.Circle(V(0, 0.13, 0), V(0, 0, 1), 0.06), math.radians(35), math.radians(145)),
], False)
sketch7.addConstraint([
    Sketcher.Constraint("Coincident", 0, 2, 1, 1),
    Sketcher.Constraint("Coincident", 1, 2, 2, 1),
    Sketcher.Constraint("Coincident", 2, 2, 3, 1),
    Sketcher.Constraint("Coincident", 3, 2, 0, 1),
    Sketcher.Constraint("Horizontal", 1),
    Sketcher.Constraint("Symmetric", 2, 2, 3, 2, -2),
    Sketcher.Constraint("Equal", 0, 2),
    Sketcher.Constraint("Angle", 0, Q("-124.999994 deg")),
    Sketcher.Constraint("DistanceY", 0, 2, -1, 1, Q("0.075 in")),
    Sketcher.Constraint("Radius", 3, 0.060915),
    Sketcher.Constraint("DistanceX", 1, 1, 1, 2, 2.99799),
    Sketcher.Constraint("DistanceX", -1, 1, 2, 2, 0.049899),
])

# Sketch on XZ plane
sketch8 = body.newObject("Sketcher::SketchObject", "Sketch007")
sketch8.AttachmentSupport = (doc.getObject("XZ_Plane"), [""])
sketch8.MapMode = "FlatFace"
sketch8.AttachmentOffset = App.Placement(V(0, 0, -0.0075 * 25.4), App.Rotation())
sketch8.addGeometry(Part.LineSegment(V(0, 1.3, 0), V(0, -1.5, 0)), False)
sketch8.addConstraint([
    Sketcher.Constraint("Vertical", 0),
    Sketcher.Constraint("PointOnObject", 0, 1, -2),
    Sketcher.Constraint("DistanceY", 0, 2, 0, 1, Q("0.11 in")),
    Sketcher.Constraint("DistanceY", -1, 1, 0, 1, Q("0.051 in")),
])
doc.recompute()

subtractivepipe = body.newObject("PartDesign::SubtractivePipe", "SubtractivePipe")
subtractivepipe.Profile = sketch7
subtractivepipe.Spine = (sketch8, ["Edge1"])
doc.recompute()

fillet = body.newObject("PartDesign::Fillet", "Fillet")
fillet.Base = (subtractivepipe, edges_at(subtractivepipe, [(0.107, 0.082, 0.325), (0, 0.191, 0.325), (-0.107, 0.082, 0.325)]))
fillet.Radius = Q("0.0089 in")
doc.recompute()

fillet2 = body.newObject("PartDesign::Fillet", "Fillet001")
fillet2.Base = (fillet, edges_at(fillet, [(0.107, 0.082, -0.325), (0, 0.191, -0.325), (-0.107, 0.082, -0.325)]))
fillet2.Radius = Q("0.0089 in")

# Sketch on YZ plane
sketch9 = body.newObject("Sketcher::SketchObject", "Sketch008")
sketch9.AttachmentSupport = (doc.getObject("YZ_Plane"), [""])
sketch9.MapMode = "FlatFace"
add_polygon(sketch9, [(-0.1, -2.5), (13.2, -2.5), (0.9, -0.3), (-0.1, -0.3)])  # lines 0-3
add_polygon(sketch9, [(0.9, 0.3), (21.7, 4), (-0.1, 4), (-0.1, 0.3)])  # lines 4-7
sketch9.addConstraint([
    Sketcher.Constraint("Horizontal", 0),
    Sketcher.Constraint("Horizontal", 2),
    Sketcher.Constraint("Vertical", 3),
    Sketcher.Constraint("Horizontal", 5),
    Sketcher.Constraint("Vertical", 6),
    Sketcher.Constraint("Horizontal", 7),
    Sketcher.Constraint("Symmetric", 2, 2, 6, 2, -1),
    Sketcher.Constraint("Vertical", 1, 2, 7, 2),
    Sketcher.Constraint("Angle", 1, Q("170 deg")),
    Sketcher.Constraint("Angle", 4, Q("9.999999 deg")),
    Sketcher.Constraint("DistanceX", -1, 1, 1, 2, Q("0.035 in")),
    Sketcher.Constraint("DistanceX", 2, 2, 2, 1, 0.989),
    Sketcher.Constraint("DistanceY", 1, 2, -1, 1, Q("0.0128 in")),
    Sketcher.Constraint("DistanceY", 3, 2, 3, 1, 2.17348),
    Sketcher.Constraint("Distance", 4, 21.180161),
])
pocket6 = body.newObject("PartDesign::Pocket", "Pocket005")
pocket6.Profile = sketch9
pocket6.Type = "ThroughAll"
pocket6.Midplane = True

doc.recompute()
